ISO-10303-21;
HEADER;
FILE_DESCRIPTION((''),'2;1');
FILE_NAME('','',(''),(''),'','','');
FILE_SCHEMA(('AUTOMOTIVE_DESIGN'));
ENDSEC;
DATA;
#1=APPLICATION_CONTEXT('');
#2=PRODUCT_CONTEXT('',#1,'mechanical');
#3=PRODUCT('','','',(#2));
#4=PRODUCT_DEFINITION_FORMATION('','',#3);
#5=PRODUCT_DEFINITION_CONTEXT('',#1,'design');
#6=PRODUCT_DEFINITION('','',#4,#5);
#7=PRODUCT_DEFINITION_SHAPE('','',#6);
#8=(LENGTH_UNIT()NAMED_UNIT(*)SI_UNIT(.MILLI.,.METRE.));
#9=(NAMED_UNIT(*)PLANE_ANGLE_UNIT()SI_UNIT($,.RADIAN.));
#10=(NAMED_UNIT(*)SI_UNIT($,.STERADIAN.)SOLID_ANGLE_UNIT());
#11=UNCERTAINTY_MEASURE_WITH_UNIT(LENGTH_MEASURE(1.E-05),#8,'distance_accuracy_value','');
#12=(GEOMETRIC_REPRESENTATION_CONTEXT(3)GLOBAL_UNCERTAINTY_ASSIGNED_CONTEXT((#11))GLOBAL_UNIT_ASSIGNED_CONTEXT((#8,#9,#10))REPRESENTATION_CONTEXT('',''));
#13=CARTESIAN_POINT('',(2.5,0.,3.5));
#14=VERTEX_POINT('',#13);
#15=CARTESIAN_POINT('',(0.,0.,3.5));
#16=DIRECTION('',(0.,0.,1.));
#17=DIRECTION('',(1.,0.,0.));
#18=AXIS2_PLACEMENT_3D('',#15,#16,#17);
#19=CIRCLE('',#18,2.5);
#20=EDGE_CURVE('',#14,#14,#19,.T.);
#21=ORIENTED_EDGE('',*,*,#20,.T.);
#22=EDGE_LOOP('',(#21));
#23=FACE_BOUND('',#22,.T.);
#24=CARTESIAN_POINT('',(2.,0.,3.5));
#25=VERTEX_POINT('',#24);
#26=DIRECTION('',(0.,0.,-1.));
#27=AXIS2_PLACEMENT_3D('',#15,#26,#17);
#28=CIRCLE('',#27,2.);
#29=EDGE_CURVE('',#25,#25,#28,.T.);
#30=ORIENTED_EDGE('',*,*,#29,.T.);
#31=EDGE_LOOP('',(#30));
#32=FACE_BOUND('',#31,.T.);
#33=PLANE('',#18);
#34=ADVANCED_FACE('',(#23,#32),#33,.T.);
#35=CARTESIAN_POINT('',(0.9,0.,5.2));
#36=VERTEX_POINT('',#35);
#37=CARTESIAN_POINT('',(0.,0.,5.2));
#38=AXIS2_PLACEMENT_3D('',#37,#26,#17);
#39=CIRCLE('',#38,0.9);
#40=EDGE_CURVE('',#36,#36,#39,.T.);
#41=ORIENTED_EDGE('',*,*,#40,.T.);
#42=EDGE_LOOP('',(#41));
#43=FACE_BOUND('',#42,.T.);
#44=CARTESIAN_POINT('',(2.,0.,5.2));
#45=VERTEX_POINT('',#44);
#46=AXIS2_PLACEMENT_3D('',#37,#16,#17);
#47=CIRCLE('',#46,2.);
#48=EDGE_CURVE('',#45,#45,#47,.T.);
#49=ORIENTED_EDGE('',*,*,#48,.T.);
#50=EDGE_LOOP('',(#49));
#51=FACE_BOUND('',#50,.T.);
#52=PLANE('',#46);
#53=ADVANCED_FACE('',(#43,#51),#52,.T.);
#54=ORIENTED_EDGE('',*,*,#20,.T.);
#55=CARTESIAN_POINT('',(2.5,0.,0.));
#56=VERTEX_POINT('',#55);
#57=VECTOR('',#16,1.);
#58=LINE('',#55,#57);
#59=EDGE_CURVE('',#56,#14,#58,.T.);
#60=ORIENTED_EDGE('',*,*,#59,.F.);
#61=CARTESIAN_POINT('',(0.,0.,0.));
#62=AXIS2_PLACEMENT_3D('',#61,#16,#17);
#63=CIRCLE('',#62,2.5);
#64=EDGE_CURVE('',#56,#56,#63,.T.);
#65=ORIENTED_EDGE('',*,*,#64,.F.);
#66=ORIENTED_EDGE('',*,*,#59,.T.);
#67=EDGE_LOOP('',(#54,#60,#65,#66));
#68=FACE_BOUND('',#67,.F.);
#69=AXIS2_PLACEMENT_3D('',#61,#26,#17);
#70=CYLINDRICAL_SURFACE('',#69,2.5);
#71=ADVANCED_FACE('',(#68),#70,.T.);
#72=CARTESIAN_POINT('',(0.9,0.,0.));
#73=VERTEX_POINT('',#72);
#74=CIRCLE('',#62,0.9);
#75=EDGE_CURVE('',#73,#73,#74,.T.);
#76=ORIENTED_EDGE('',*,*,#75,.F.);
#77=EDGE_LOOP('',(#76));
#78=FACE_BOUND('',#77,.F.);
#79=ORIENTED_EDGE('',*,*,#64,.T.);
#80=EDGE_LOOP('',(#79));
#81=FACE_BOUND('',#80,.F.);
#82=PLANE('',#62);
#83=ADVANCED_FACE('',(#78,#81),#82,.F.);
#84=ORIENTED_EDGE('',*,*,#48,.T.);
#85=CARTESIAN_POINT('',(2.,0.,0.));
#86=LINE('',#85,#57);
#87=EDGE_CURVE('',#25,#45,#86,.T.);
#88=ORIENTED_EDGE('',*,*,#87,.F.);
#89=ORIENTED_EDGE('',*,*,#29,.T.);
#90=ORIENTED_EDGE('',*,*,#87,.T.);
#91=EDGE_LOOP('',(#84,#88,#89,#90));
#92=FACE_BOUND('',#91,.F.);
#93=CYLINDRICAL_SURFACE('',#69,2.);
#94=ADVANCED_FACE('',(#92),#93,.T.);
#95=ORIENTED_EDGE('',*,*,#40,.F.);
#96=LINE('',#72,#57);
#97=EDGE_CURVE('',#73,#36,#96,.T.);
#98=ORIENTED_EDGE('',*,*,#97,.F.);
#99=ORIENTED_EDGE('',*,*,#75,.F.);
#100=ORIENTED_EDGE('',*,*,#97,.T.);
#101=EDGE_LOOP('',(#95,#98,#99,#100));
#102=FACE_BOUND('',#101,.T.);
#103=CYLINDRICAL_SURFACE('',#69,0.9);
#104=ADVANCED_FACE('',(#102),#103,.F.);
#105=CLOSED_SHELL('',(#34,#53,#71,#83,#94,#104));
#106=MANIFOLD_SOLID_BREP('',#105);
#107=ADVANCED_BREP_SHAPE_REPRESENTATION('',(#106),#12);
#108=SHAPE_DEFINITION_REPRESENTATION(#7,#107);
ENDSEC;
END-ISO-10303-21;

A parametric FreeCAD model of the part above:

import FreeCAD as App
import Part
import Sketcher
Q = App.Units.Quantity

doc = App.newDocument("Part")
body = doc.addObject("PartDesign::Body", "Body")

sketch1 = body.newObject("Sketcher::SketchObject", "Sketch")
sketch1.AttachmentSupport = (doc.getObject("XY_Plane"), [""])
sketch1.MapMode = "FlatFace"
sketch1.addGeometry(Part.Circle(App.Vector(0, 0, 0), App.Vector(0, 0, 1), 0.9), False)
sketch1.addConstraint(Sketcher.Constraint("Coincident", 0, 3, -1, 1))
sketch1.addConstraint(Sketcher.Constraint("Diameter", 0, Q("1.8 mm")))
pad1 = body.newObject("PartDesign::Pad", "Pad")
pad1.Profile = sketch1
pad1.Length = 10
body2 = doc.addObject("PartDesign::Body", "Body001")

sketch2 = body2.newObject("Sketcher::SketchObject", "Sketch001")
sketch2.AttachmentSupport = (doc.getObject("XY_Plane001"), [""])
sketch2.MapMode = "FlatFace"
sketch2.addGeometry(Part.Circle(App.Vector(0, 0, 0), App.Vector(0, 0, 1), 2.5), False)
sketch2.addConstraint(Sketcher.Constraint("Coincident", 0, 3, -1, 1))
sketch2.addConstraint(Sketcher.Constraint("Diameter", 0, Q("5 mm")))
pad2 = body2.newObject("PartDesign::Pad", "Pad001")
pad2.Profile = sketch2
pad2.Length = 3.5
body3 = doc.addObject("PartDesign::Body", "Body002")

sketch3 = body3.newObject("Sketcher::SketchObject", "Sketch002")
sketch3.AttachmentSupport = (doc.getObject("XY_Plane002"), [""])
sketch3.MapMode = "FlatFace"
sketch3.addGeometry(Part.Circle(App.Vector(0, 0, 0), App.Vector(0, 0, 1), 2), False)
sketch3.addConstraint(Sketcher.Constraint("Coincident", 0, 3, -1, 1))
sketch3.addConstraint(Sketcher.Constraint("Diameter", 0, Q("4 mm")))
pad3 = body3.newObject("PartDesign::Pad", "Pad002")
pad3.Profile = sketch3
pad3.Length = 5.2
doc.recompute()

boolean = body3.newObject("PartDesign::Boolean", "Boolean")
boolean.Type = "Fuse"
boolean.addObjects([body2])
doc.recompute()

boolean2 = body3.newObject("PartDesign::Boolean", "Boolean001")
boolean2.Type = "Cut"
boolean2.addObjects([body])

doc.recompute()
